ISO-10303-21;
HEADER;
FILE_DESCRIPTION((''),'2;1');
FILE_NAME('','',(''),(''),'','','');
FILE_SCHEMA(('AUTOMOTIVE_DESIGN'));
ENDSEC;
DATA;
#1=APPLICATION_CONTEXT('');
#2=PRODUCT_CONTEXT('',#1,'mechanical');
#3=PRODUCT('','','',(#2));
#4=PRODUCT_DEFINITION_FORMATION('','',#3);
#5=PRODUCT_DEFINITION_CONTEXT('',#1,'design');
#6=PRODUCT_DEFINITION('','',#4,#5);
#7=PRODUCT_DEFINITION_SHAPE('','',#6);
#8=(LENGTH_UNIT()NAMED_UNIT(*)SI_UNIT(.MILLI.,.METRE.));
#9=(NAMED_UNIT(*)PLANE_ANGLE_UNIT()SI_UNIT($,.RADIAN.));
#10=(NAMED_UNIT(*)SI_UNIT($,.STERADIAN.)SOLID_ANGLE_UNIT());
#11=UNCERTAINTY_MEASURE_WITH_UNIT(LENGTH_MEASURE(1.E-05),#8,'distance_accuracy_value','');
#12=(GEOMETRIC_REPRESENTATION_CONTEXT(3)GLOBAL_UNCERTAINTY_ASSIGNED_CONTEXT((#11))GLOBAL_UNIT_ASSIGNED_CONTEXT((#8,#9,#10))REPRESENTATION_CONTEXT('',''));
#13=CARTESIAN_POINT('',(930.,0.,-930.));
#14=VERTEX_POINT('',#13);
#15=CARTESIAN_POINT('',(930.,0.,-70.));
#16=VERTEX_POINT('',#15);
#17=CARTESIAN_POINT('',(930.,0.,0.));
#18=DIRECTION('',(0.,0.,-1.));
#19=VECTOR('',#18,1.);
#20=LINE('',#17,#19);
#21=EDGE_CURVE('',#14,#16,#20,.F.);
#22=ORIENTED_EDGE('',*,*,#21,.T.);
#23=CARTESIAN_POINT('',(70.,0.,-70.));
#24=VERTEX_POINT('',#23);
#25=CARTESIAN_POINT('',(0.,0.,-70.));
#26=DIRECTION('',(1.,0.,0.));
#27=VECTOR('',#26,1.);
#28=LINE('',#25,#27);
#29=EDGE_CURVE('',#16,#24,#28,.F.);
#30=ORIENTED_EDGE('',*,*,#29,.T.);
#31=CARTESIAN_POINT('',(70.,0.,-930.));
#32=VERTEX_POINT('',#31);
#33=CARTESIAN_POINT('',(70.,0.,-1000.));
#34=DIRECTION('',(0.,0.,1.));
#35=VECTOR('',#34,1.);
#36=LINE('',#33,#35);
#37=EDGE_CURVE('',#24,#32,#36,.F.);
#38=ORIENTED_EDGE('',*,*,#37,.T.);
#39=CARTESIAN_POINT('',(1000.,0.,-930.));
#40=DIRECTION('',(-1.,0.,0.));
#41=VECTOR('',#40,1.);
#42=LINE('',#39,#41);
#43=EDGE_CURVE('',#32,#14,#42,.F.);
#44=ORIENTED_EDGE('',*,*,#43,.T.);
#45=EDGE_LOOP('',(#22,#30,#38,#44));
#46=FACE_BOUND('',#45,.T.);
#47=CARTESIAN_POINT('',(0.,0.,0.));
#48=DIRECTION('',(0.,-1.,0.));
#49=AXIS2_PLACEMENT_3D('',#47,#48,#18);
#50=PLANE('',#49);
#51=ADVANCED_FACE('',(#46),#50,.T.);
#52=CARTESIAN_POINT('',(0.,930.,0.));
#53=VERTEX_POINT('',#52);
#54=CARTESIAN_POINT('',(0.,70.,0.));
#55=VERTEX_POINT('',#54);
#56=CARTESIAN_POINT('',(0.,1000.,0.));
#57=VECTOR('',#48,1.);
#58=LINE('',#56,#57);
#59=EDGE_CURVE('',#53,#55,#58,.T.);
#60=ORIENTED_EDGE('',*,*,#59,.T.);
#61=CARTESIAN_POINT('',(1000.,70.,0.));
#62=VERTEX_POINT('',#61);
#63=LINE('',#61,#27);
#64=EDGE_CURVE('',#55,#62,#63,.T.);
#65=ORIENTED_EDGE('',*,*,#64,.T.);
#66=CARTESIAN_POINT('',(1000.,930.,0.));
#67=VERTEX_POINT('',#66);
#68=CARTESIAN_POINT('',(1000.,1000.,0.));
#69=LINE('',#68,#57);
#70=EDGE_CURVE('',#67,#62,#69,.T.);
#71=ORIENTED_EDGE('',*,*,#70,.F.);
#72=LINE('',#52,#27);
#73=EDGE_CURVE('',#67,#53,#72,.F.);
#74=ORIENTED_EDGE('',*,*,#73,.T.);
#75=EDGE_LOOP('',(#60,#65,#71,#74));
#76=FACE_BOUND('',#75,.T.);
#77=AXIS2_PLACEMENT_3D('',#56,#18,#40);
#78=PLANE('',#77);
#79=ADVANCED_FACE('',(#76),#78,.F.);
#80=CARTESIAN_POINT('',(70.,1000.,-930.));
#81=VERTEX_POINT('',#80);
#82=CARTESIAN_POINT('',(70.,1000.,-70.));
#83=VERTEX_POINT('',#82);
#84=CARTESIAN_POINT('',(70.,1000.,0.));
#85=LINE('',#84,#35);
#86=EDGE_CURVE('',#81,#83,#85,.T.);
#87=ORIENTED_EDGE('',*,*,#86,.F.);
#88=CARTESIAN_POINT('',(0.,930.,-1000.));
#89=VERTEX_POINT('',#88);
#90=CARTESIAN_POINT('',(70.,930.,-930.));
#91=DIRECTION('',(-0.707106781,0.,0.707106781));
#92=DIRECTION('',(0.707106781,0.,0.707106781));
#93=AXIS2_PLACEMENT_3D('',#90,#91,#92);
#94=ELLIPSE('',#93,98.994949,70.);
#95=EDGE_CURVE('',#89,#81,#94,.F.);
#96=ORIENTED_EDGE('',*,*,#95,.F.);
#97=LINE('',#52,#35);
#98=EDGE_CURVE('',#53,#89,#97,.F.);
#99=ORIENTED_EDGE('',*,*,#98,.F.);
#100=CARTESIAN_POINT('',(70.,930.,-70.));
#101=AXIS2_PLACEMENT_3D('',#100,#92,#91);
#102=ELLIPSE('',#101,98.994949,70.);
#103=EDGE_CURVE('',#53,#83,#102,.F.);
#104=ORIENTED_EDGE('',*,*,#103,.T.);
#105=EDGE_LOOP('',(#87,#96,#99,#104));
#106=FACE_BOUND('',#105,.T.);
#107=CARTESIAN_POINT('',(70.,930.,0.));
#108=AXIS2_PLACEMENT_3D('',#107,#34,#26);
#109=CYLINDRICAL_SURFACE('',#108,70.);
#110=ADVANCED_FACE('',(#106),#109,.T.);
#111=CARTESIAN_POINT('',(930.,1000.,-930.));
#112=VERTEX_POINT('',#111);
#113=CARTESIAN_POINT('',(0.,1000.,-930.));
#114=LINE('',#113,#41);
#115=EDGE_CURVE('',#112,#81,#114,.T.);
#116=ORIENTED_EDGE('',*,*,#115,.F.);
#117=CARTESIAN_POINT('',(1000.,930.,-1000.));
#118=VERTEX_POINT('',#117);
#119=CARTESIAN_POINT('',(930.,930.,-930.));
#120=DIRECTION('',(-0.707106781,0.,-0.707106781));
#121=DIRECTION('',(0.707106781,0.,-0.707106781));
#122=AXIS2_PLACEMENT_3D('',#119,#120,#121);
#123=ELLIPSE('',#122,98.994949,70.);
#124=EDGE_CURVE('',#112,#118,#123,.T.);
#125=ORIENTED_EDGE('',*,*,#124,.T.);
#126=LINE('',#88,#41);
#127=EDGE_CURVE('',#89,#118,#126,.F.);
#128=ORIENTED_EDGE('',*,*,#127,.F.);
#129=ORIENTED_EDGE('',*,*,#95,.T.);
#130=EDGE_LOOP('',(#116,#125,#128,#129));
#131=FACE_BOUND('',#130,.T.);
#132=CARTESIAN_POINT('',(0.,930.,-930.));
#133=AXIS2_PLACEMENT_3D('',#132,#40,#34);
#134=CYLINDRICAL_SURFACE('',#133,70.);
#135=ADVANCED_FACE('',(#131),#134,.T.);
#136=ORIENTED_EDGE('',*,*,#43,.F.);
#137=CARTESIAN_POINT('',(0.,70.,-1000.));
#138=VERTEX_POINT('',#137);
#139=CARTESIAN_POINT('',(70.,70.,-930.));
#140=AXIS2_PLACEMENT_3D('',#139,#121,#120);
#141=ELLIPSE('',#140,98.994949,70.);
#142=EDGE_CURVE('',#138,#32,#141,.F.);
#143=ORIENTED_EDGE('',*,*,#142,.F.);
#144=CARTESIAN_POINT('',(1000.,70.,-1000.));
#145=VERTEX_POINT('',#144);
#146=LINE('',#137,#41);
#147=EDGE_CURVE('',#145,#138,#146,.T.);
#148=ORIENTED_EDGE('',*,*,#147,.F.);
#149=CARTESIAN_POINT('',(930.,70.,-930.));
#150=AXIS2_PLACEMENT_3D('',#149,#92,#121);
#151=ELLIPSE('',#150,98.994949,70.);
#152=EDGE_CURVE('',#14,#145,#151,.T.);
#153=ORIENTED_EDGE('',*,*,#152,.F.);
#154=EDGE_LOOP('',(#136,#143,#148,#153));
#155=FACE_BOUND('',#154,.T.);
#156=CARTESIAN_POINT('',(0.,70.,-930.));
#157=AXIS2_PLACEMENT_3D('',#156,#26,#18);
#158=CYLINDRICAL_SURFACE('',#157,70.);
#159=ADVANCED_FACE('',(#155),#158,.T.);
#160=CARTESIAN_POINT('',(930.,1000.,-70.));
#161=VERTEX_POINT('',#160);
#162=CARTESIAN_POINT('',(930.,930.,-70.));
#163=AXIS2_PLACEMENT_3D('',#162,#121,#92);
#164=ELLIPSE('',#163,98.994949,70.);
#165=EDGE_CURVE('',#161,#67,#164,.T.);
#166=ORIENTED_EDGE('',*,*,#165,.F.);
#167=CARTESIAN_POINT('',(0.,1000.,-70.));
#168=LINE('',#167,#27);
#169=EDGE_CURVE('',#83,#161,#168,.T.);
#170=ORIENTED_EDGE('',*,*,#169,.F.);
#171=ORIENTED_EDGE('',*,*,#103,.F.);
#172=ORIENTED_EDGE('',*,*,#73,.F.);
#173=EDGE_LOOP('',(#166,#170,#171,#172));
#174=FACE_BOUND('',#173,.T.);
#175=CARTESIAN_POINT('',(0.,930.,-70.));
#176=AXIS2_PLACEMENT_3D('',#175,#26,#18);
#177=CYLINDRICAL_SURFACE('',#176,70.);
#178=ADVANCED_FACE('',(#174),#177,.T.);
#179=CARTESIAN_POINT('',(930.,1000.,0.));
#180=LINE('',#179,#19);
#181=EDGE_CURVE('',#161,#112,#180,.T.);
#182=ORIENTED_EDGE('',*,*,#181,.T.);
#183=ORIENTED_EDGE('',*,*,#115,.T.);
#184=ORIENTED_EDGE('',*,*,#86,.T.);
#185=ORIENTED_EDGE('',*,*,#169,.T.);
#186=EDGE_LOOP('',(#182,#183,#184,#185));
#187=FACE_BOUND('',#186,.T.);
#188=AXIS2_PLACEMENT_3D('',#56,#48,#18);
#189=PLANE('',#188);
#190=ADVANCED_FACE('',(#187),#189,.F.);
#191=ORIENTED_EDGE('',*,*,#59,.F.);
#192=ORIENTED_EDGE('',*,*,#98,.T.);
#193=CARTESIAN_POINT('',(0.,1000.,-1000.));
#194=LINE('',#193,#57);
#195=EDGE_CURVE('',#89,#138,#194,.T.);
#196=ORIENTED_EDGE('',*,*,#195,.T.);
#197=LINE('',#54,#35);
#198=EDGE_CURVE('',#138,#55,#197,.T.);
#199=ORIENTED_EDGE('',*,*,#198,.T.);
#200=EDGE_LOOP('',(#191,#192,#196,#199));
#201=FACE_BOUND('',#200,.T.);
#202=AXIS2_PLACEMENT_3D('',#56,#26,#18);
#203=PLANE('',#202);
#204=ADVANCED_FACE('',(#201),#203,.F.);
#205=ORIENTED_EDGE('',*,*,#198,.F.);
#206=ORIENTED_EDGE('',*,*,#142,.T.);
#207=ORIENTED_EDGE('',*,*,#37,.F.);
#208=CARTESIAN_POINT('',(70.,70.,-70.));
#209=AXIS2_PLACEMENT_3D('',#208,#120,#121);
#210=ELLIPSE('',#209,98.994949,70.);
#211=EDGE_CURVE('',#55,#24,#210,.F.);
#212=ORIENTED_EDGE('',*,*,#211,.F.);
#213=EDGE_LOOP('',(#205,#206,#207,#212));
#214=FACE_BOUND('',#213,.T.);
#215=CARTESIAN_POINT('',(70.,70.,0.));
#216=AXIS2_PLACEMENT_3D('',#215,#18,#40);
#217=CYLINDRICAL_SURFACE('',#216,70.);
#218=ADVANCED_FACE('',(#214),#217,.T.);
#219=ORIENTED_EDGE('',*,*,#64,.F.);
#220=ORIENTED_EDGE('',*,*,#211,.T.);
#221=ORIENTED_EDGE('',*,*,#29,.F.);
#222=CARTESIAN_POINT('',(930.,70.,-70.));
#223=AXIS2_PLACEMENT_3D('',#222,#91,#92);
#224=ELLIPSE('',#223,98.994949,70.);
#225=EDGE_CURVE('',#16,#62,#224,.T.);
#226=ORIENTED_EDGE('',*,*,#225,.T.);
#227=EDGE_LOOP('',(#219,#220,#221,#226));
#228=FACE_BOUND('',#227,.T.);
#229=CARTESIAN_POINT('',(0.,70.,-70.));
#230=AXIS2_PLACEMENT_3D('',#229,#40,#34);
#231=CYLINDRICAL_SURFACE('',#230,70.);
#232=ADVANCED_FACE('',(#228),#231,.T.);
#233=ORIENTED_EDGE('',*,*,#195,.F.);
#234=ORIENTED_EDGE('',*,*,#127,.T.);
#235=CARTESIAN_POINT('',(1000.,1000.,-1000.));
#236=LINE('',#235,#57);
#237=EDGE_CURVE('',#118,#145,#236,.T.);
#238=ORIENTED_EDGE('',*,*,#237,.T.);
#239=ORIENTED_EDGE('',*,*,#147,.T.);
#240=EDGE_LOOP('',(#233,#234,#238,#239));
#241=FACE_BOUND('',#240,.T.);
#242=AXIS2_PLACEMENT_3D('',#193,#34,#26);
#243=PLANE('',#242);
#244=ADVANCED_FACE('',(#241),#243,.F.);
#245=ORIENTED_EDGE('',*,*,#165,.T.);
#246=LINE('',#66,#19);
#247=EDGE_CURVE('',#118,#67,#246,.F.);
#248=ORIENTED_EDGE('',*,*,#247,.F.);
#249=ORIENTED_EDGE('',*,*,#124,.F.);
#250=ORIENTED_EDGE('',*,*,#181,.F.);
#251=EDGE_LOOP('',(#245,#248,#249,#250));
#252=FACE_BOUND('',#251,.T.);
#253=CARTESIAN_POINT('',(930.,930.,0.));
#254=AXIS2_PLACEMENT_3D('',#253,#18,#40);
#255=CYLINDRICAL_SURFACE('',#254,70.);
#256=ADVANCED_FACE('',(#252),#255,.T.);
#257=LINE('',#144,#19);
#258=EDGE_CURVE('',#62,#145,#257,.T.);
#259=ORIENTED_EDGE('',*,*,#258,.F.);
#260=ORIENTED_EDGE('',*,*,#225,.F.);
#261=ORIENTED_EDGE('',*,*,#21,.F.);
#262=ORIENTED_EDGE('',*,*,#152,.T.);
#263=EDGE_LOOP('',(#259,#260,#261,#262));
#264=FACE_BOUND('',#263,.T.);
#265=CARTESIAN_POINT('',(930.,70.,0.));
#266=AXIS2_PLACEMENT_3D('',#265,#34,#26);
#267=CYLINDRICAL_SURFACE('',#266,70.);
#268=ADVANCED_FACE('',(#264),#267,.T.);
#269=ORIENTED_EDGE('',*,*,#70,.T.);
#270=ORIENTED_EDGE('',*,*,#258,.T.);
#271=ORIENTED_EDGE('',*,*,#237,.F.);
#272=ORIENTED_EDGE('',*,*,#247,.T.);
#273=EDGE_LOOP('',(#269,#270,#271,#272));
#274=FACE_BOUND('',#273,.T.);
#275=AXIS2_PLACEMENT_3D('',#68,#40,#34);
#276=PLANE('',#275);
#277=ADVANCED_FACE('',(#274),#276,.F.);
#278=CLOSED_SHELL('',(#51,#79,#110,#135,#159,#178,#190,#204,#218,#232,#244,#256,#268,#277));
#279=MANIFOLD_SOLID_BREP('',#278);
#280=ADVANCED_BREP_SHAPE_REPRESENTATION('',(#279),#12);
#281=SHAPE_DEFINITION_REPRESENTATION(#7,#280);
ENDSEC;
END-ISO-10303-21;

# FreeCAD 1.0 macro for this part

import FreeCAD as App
import Part
import Sketcher
Q = App.Units.Quantity


def edges_at(feature, points):
    """Names of the edges that pass closest to the given points."""
    edges = feature.Shape.Edges
    near = lambda p: min(range(len(edges)), key=lambda i: edges[i].distToShape(Part.Vertex(*p))[0])
    return sorted({f"Edge{near(p) + 1}" for p in points})


def add_polygon(sketch, points):
    """Adds a closed chain of lines whose ends are joined by coincident constraints."""
    first, n = sketch.GeometryCount, len(points)
    for a, b in zip(points, points[1:] + points[:1]):
        sketch.addGeometry(Part.LineSegment(App.Vector(*a, 0), App.Vector(*b, 0)), False)
    for i in range(n):
        sketch.addConstraint(Sketcher.Constraint("Coincident", first + i, 2, first + (i + 1) % n, 1))

doc = App.newDocument("Part")
body = doc.addObject("PartDesign::Body", "Body")

# Sketch on XZ plane
sketch1 = body.newObject("Sketcher::SketchObject", "Sketch")
sketch1.AttachmentSupport = (doc.getObject("XZ_Plane"), [""])
sketch1.MapMode = "FlatFace"
add_polygon(sketch1, [(0, -1000), (0, 0), (1000, 0), (1000, -1000)])  # lines 0-3
sketch1.addConstraint(Sketcher.Constraint("Vertical", 0))
sketch1.addConstraint(Sketcher.Constraint("Horizontal", 1))
sketch1.addConstraint(Sketcher.Constraint("Vertical", 2))
sketch1.addConstraint(Sketcher.Constraint("Horizontal", 3))
sketch1.addConstraint(Sketcher.Constraint("Coincident", 0, 2, -1, 1))
sketch1.addConstraint(Sketcher.Constraint("Equal", 3, 0))
sketch1.addConstraint(Sketcher.Constraint("DistanceX", 1, 1, 1, 2, Q("1000 mm")))
pad1 = body.newObject("PartDesign::Pad", "Pad")
pad1.Profile = sketch1
pad1.Length = 1000
pad1.Reversed = True
doc.recompute()

fillet = body.newObject("PartDesign::Fillet", "Fillet")
fillet.Base = (pad1, edges_at(pad1, [
    (1000, 1000, -500),
    (500, 1000, -1000),
    (0, 1000, -500),
    (500, 0, -1000),
    (1000, 0, -500),
    (500, 0, 0),
    (0, 0, -500),
    (500, 1000, 0),
]))
fillet.Radius = 70

doc.recompute()
